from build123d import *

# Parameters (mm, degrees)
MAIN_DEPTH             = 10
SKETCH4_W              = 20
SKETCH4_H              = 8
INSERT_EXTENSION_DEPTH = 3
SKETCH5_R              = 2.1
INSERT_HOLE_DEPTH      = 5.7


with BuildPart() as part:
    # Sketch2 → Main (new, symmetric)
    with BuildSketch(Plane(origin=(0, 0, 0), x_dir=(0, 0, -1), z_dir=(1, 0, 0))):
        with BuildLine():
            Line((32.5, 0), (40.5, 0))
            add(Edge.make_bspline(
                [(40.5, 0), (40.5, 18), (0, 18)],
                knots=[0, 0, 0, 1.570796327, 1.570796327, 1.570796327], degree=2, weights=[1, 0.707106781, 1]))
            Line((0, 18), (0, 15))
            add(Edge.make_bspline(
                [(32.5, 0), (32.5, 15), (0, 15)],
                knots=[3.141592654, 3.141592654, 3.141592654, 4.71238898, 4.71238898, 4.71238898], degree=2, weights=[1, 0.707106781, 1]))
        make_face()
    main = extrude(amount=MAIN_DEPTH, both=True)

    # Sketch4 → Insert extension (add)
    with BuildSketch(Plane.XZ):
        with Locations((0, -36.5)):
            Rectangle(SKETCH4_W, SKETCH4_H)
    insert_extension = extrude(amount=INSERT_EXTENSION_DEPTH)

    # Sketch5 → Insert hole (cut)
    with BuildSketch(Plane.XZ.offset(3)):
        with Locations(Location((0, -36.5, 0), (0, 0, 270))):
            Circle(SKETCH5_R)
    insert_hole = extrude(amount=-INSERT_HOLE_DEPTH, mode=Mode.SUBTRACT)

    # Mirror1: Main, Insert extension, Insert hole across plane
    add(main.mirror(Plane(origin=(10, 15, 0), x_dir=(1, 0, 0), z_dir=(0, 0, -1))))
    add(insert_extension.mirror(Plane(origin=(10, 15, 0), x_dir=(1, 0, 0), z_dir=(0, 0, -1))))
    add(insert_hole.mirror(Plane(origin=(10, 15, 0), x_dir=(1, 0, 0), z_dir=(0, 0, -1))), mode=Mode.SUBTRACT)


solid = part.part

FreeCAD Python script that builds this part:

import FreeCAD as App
import Part
import Sketcher

V = App.Vector
Q = App.Units.Quantity

doc = App.newDocument("Part")
body = doc.addObject("PartDesign::Body", "Body")

# Sketch on YZ plane
sketch1 = doc.addObject("Sketcher::SketchObject", "Sketch")
body.addObject(sketch1)
sketch1.AttachmentSupport = (doc.YZ_Plane, [""])
sketch1.MapMode = "FlatFace"
sketch1.addGeometry(Part.LineSegment(V(0, -32.5, 0), V(0, -40.5, 0)), False)
sketch1.addGeometry(Part.BSplineCurve([V(0, -40.5, 0), V(18, -40.5, 0), V(18, 0, 0)], [3, 3], [0, 1.570796327], False, 2, [1, 0.707106781, 1], False), False)
sketch1.addGeometry(Part.LineSegment(V(18, 0, 0), V(15, 0, 0)), False)
sketch1.addGeometry(Part.BSplineCurve([V(0, -32.5, 0), V(15, -32.5, 0), V(15, 0, 0)], [3, 3], [3.141592654, 4.71238898], False, 2, [1, 0.707106781, 1], False), False)
sketch1.addConstraint(Sketcher.Constraint("Block", 1))
sketch1.addConstraint(Sketcher.Constraint("Block", 3))
sketch1.addConstraint(Sketcher.Constraint("Coincident", 0, 2, 1, 1))
sketch1.addConstraint(Sketcher.Constraint("Coincident", 1, 2, 2, 1))
sketch1.addConstraint(Sketcher.Constraint("Coincident", 2, 2, 3, 2))
sketch1.addConstraint(Sketcher.Constraint("Coincident", 3, 1, 0, 1))
pad1 = doc.addObject("PartDesign::Pad", "Pad")
body.addObject(pad1)
pad1.Profile = sketch1
pad1.Length = 20
pad1.Midplane = True

# Sketch on XZ plane
sketch2 = doc.addObject("Sketcher::SketchObject", "Sketch001")
body.addObject(sketch2)
sketch2.AttachmentSupport = (doc.XZ_Plane, [""])
sketch2.MapMode = "FlatFace"
sketch2.addGeometry(Part.LineSegment(V(-10, -32, 0), V(-10, -40, 0)), False)
sketch2.addGeometry(Part.LineSegment(V(-10, -40, 0), V(10, -40, 0)), False)
sketch2.addGeometry(Part.LineSegment(V(10, -40, 0), V(10, -32, 0)), False)
sketch2.addGeometry(Part.LineSegment(V(10, -32, 0), V(-10, -32, 0)), False)
sketch2.addConstraint(Sketcher.Constraint("Coincident", 0, 2, 1, 1))
sketch2.addConstraint(Sketcher.Constraint("Coincident", 1, 2, 2, 1))
sketch2.addConstraint(Sketcher.Constraint("Coincident", 2, 2, 3, 1))
sketch2.addConstraint(Sketcher.Constraint("Coincident", 3, 2, 0, 1))
sketch2.addConstraint(Sketcher.Constraint("Vertical", 0))
sketch2.addConstraint(Sketcher.Constraint("Horizontal", 1))
sketch2.addConstraint(Sketcher.Constraint("Vertical", 2))
sketch2.addConstraint(Sketcher.Constraint("Horizontal", 3))
sketch2.addConstraint(Sketcher.Constraint("DistanceX", 1, 1, 1, 2, Q("20 mm")))
sketch2.addConstraint(Sketcher.Constraint("DistanceY", 0, 2, 0, 1, Q("8 mm")))
sketch2.addConstraint(Sketcher.Constraint("DistanceX", 0, 2, -1, 1, Q("10 mm")))
sketch2.addConstraint(Sketcher.Constraint("DistanceY", 0, 2, -1, 1, Q("40.5 mm")))
pad2 = doc.addObject("PartDesign::Pad", "Pad001")
body.addObject(pad2)
pad2.Profile = sketch2
pad2.Length = 3

# Sketch on XZ plane
sketch3 = doc.addObject("Sketcher::SketchObject", "Sketch002")
body.addObject(sketch3)
sketch3.AttachmentSupport = (doc.XZ_Plane, [""])
sketch3.MapMode = "FlatFace"
sketch3.AttachmentOffset = App.Placement(V(0, 0, 3), App.Rotation())
sketch3.addGeometry(Part.Circle(V(0, -36.5, 0), V(0, 0, 1), 2.1), False)
sketch3.addConstraint(Sketcher.Constraint("PointOnObject", 0, 3, -2))
sketch3.addConstraint(Sketcher.Constraint("Diameter", 0, Q("4.2 mm")))
sketch3.addConstraint(Sketcher.Constraint("DistanceY", 0, 3, -1, 1, Q("36.5 mm")))
pocket1 = doc.addObject("PartDesign::Pocket", "Pocket")
body.addObject(pocket1)
pocket1.Profile = sketch3
pocket1.Length = 5.7
doc.recompute()

mirrored = doc.addObject("PartDesign::Mirrored", "Mirrored")
body.addObject(mirrored)
mirrored.Originals = [pad1, pad2, pocket1]
mirrored.MirrorPlane = (doc.XY_Plane, [""])
body.Tip = mirrored

doc.recompute()
